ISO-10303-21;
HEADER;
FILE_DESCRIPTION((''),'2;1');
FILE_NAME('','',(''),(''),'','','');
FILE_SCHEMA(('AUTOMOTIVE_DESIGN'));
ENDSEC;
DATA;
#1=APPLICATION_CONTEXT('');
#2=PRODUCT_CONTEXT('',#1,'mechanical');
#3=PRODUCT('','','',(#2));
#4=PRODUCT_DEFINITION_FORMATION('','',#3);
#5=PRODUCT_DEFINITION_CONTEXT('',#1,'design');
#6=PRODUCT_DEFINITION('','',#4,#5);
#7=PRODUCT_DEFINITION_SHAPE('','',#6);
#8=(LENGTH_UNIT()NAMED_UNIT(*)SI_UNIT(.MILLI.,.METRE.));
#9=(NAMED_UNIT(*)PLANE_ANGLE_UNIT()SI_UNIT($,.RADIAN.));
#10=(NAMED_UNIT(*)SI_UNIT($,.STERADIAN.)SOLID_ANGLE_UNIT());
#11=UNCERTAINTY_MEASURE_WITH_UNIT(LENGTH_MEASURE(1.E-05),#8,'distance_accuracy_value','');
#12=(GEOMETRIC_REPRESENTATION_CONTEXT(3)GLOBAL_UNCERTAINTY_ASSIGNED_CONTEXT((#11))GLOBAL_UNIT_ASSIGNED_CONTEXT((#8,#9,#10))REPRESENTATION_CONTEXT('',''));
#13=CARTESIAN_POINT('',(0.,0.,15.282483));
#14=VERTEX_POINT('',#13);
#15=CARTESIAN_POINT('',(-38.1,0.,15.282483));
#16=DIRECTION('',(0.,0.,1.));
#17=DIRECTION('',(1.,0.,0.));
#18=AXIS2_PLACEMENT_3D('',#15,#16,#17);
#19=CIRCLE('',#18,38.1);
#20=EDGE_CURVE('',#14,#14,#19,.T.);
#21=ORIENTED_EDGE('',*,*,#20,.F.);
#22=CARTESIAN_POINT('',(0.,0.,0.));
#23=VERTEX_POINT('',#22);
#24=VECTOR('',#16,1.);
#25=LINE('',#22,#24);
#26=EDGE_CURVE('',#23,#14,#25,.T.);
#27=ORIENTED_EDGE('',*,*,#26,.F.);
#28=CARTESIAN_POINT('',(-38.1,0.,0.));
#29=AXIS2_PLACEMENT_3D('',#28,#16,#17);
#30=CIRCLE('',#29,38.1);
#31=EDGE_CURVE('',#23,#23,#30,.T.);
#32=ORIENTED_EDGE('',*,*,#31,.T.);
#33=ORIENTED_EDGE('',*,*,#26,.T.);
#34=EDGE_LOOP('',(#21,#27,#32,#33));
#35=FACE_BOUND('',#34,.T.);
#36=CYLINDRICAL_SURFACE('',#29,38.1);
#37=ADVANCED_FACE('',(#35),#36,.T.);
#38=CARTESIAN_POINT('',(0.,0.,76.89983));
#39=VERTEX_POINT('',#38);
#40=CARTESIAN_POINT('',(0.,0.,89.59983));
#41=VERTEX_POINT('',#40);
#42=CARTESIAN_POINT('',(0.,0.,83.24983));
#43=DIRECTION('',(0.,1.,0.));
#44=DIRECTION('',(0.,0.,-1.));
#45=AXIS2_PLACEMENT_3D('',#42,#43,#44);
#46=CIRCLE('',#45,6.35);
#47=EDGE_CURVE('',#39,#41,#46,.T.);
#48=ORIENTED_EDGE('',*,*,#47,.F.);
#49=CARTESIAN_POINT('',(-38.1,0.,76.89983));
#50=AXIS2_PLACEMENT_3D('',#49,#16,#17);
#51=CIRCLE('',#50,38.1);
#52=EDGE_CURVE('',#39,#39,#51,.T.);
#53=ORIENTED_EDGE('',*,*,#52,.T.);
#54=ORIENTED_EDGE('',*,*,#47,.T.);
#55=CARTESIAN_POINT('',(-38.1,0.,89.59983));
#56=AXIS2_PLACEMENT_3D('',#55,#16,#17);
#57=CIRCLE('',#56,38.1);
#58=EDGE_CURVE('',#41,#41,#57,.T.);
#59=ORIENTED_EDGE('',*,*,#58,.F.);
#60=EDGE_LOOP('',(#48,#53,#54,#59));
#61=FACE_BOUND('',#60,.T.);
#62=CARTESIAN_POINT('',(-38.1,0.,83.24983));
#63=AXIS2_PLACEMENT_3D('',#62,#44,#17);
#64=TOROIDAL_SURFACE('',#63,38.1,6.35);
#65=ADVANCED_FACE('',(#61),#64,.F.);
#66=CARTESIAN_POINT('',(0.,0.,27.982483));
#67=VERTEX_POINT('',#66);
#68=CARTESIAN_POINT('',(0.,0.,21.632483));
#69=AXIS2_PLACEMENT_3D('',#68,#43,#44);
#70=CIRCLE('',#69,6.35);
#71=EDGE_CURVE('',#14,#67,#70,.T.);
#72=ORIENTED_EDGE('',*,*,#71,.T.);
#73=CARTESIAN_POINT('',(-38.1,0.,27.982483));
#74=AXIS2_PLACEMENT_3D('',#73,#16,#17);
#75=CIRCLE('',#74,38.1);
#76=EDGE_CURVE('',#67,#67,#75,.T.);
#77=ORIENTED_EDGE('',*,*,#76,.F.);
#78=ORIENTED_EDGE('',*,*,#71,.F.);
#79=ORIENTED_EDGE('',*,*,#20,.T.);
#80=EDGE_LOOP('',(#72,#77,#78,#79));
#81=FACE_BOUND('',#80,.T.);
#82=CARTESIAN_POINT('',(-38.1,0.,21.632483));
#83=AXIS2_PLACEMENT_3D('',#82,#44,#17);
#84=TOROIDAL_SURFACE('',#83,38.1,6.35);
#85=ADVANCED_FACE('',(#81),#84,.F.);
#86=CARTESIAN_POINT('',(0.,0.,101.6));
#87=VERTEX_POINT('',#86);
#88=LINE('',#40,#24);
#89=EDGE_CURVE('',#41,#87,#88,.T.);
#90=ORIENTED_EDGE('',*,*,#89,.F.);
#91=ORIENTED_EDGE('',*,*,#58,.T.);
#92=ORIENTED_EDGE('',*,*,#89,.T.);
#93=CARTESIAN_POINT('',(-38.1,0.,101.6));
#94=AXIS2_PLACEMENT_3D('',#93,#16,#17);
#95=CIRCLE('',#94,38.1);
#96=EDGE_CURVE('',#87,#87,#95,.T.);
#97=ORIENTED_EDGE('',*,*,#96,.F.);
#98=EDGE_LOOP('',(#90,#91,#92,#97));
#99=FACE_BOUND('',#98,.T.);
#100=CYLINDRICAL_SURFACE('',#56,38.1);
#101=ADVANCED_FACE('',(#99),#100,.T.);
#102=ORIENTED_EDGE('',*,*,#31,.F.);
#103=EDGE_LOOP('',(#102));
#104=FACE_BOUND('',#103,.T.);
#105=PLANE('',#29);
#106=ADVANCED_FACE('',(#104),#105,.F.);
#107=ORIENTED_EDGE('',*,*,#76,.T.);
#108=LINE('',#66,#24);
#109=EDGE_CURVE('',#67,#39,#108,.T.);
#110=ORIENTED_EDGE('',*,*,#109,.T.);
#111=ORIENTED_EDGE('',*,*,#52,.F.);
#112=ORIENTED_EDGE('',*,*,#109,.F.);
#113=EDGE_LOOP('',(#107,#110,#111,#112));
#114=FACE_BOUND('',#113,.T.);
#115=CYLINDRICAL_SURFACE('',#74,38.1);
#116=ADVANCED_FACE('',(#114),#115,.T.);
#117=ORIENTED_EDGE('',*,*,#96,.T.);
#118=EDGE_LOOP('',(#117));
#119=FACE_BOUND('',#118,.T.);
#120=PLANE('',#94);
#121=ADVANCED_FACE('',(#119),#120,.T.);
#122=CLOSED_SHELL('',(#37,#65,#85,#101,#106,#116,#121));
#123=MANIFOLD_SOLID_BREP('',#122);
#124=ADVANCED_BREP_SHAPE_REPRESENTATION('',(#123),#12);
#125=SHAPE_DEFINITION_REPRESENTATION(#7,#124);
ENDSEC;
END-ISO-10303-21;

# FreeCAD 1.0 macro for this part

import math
import FreeCAD as App
import Part
import Sketcher

V = App.Vector
Q = App.Units.Quantity

doc = App.newDocument("Part")
body = doc.addObject("PartDesign::Body", "Body")

sketch1 = body.newObject("Sketcher::SketchObject", "Sketch")
sketch1.AttachmentSupport = (doc.getObject("XZ_Plane"), [""])
sketch1.MapMode = "FlatFace"
sketch1.addGeometry([
    Part.LineSegment(V(-38, 0, 0), V(0, 0, 0)),
    Part.LineSegment(V(0, 0, 0), V(0, 15, 0)),
    Part.ArcOfCircle(Part.Circle(V(0, 22, 0), V(0, 0, 1), 6), math.radians(90), math.radians(270)),
    Part.LineSegment(V(0, 28, 0), V(0, 77, 0)),
    Part.ArcOfCircle(Part.Circle(V(0, 83, 0), V(0, 0, 1), 6), math.radians(90), math.radians(270)),
    Part.LineSegment(V(0, 90, 0), V(0, 102, 0)),
    Part.LineSegment(V(0, 102, 0), V(-38, 102, 0)),
    Part.LineSegment(V(-38, 102, 0), V(-38, 0, 0)),
], False)
sketch1.addGeometry(Part.LineSegment(V(-38, 0, 0), V(-38, 102, 0)), True)
sketch1.addConstraint([
    Sketcher.Constraint("Coincident", 0, 2, 1, 1),
    Sketcher.Constraint("Coincident", 1, 2, 2, 2),
    Sketcher.Constraint("Coincident", 2, 1, 3, 1),
    Sketcher.Constraint("Coincident", 3, 2, 4, 2),
    Sketcher.Constraint("Coincident", 4, 1, 5, 1),
    Sketcher.Constraint("Coincident", 5, 2, 6, 1),
    Sketcher.Constraint("Coincident", 6, 2, 7, 1),
    Sketcher.Constraint("Coincident", 7, 2, 0, 1),
    Sketcher.Constraint("Horizontal", 0),
    Sketcher.Constraint("Vertical", 1),
    Sketcher.Constraint("Vertical", 3),
    Sketcher.Constraint("Vertical", 5),
    Sketcher.Constraint("Horizontal", 6),
    Sketcher.Constraint("Vertical", 7),
    Sketcher.Constraint("Vertical", 8),
    Sketcher.Constraint("Coincident", 0, 2, -1, 1),
    Sketcher.Constraint("Coincident", 8, 1, 7, 2),
    Sketcher.Constraint("Equal", 2, 4),
    Sketcher.Constraint("PointOnObject", 2, 3, -2),
    Sketcher.Constraint("PointOnObject", 4, 3, -2),
    Sketcher.Constraint("PointOnObject", 2, 1, -2),
    Sketcher.Constraint("PointOnObject", 4, 1, -2),
    Sketcher.Constraint("Horizontal", 5, 2, 8, 2),
    Sketcher.Constraint("DistanceY", 7, 2, 7, 1, Q("4 in")),
    Sketcher.Constraint("Radius", 2, Q("0.25 in")),
    Sketcher.Constraint("DistanceX", 0, 1, 0, 2, Q("1.5 in")),
    Sketcher.Constraint("DistanceY", 5, 1, 5, 2, Q("12.00017 mm")),
    Sketcher.Constraint("DistanceY", 1, 1, 1, 2, Q("15.282483 mm")),
])
revolution = body.newObject("PartDesign::Revolution", "Revolution")
revolution.Profile = sketch1
revolution.ReferenceAxis = (sketch1, ["Axis0"])
revolution.Angle = 360

doc.recompute()
